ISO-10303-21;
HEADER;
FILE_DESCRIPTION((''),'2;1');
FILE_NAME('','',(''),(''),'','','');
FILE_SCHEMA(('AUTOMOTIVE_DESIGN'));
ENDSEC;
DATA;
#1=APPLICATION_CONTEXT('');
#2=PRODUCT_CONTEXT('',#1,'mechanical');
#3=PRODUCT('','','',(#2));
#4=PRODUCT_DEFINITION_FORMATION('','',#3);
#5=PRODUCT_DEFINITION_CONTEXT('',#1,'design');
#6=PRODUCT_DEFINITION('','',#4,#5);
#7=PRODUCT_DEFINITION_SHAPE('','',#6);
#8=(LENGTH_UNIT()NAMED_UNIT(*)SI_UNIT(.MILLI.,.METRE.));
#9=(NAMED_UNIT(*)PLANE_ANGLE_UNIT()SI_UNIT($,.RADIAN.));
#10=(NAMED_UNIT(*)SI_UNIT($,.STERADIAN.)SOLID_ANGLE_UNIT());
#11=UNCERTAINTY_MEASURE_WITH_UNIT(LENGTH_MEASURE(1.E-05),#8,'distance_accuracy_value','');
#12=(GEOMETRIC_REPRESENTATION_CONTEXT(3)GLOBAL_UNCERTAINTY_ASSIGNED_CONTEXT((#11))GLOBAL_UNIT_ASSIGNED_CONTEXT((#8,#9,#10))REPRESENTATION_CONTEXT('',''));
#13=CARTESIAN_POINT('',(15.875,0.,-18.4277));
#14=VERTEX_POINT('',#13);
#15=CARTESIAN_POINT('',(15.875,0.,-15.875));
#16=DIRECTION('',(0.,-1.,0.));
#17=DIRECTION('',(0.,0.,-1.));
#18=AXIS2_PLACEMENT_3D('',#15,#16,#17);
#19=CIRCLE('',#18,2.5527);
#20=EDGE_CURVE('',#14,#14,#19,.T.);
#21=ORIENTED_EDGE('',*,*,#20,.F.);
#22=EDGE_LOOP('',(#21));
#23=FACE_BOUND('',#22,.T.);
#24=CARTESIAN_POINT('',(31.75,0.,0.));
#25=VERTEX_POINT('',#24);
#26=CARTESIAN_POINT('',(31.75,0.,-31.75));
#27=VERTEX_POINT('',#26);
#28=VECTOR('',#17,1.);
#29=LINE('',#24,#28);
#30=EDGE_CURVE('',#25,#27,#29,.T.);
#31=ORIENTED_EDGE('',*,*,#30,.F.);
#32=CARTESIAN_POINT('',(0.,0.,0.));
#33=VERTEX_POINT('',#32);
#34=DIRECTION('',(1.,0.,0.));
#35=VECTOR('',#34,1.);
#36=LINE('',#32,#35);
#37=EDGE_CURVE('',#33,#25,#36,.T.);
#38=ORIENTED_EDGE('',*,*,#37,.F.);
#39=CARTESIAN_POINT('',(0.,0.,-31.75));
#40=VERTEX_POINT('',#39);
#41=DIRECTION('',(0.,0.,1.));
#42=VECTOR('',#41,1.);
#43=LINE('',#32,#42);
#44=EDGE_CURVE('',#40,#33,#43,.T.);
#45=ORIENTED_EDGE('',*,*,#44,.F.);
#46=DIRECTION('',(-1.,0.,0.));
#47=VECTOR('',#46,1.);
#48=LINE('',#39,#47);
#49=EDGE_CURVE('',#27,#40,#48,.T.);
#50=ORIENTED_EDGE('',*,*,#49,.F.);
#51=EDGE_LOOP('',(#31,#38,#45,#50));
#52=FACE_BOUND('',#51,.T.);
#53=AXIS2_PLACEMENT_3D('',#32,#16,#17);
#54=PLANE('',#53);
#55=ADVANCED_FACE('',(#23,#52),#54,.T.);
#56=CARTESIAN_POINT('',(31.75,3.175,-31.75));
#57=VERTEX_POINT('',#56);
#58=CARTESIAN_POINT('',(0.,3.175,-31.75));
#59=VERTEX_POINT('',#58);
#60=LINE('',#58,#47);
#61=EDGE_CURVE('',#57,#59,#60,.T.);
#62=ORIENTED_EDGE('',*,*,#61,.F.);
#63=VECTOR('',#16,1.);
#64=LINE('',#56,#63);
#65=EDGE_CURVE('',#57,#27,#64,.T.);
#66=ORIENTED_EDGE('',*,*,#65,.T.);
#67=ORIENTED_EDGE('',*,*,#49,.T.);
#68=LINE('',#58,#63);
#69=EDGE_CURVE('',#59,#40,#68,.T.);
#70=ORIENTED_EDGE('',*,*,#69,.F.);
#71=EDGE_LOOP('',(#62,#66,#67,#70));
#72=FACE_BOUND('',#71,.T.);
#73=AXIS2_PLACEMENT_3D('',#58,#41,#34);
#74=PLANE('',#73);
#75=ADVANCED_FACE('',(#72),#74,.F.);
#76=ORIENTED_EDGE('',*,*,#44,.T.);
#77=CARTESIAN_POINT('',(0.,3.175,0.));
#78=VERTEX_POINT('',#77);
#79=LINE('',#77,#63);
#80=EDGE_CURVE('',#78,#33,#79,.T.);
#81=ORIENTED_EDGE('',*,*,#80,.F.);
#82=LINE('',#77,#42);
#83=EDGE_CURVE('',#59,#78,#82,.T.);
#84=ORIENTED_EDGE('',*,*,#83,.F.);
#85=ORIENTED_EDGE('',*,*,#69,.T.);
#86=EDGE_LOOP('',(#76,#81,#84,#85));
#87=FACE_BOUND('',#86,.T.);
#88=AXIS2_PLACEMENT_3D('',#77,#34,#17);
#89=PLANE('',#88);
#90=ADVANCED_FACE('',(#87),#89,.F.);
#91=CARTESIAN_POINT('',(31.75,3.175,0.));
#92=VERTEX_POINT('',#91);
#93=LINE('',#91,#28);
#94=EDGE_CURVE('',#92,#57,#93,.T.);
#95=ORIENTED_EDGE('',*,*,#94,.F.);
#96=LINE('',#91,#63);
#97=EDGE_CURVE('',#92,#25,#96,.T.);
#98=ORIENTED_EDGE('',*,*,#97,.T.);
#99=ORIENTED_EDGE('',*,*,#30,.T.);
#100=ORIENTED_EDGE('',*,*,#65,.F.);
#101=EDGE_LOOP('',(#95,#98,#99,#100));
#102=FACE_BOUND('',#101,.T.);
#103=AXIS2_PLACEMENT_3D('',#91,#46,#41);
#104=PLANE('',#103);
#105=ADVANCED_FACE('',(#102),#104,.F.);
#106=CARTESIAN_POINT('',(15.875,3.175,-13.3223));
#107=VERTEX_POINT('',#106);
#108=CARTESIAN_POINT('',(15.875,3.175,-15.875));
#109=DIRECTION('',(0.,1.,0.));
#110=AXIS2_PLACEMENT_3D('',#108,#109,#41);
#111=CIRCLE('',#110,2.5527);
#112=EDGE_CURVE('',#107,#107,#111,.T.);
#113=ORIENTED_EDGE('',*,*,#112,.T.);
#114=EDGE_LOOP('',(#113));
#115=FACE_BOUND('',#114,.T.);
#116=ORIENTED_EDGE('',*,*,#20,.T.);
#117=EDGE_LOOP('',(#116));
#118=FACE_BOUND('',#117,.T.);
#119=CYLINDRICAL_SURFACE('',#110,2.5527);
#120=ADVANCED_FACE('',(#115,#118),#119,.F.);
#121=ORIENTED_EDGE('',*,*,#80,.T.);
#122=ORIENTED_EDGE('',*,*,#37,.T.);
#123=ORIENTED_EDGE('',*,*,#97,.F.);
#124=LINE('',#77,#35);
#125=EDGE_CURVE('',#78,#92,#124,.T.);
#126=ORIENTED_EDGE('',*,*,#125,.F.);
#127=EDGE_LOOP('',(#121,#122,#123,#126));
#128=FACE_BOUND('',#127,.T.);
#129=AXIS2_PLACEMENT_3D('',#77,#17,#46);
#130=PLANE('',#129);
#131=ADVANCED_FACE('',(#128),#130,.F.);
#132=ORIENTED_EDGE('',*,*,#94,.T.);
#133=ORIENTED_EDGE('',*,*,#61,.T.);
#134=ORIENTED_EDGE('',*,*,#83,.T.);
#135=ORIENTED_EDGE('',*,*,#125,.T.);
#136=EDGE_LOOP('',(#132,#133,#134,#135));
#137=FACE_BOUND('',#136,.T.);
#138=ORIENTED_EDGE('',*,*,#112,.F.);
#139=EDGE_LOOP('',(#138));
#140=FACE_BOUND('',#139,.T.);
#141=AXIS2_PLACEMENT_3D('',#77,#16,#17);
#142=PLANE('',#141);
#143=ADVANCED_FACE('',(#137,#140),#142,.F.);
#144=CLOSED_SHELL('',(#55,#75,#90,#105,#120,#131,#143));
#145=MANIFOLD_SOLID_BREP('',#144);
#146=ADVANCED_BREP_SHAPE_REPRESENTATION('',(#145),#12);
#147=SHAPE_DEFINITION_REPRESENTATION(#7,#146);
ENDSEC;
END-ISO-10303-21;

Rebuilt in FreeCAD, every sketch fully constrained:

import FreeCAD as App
import Part
import Sketcher
from FreeCAD import Vector
Q = App.Units.Quantity


def add_polygon(sketch, points):
    """Adds a closed chain of lines whose ends are joined by coincident constraints."""
    first, n = sketch.GeometryCount, len(points)
    for a, b in zip(points, points[1:] + points[:1]):
        sketch.addGeometry(Part.LineSegment(App.Vector(*a, 0), App.Vector(*b, 0)), False)
    for i in range(n):
        sketch.addConstraint(Sketcher.Constraint("Coincident", first + i, 2, first + (i + 1) % n, 1))

doc = App.newDocument("Part")
body = doc.addObject("PartDesign::Body", "Body")

# Sketch on XZ plane
sketch1 = body.newObject("Sketcher::SketchObject", "Sketch")
sketch1.AttachmentSupport = (doc.getObject("XZ_Plane"), [""])
sketch1.MapMode = "FlatFace"
add_polygon(sketch1, [(0, -32), (0, 0), (32, 0), (32, -32)])  # lines 0-3
sketch1.addConstraint([
    Sketcher.Constraint("Vertical", 0),
    Sketcher.Constraint("Horizontal", 1),
    Sketcher.Constraint("Vertical", 2),
    Sketcher.Constraint("Horizontal", 3),
    Sketcher.Constraint("Coincident", 0, 2, -1, 1),
    Sketcher.Constraint("Equal", 3, 0),
    Sketcher.Constraint("DistanceX", 1, 1, 1, 2, Q("1.25 in")),
])
pad1 = body.newObject("PartDesign::Pad", "Pad")
pad1.Profile = sketch1
pad1.Length = Q("0.125 in")
pad1.Reversed = True

# Sketch on XZ plane
sketch2 = body.newObject("Sketcher::SketchObject", "Sketch001")
sketch2.AttachmentSupport = (doc.getObject("XZ_Plane"), [""])
sketch2.MapMode = "FlatFace"
sketch2.AttachmentOffset = App.Placement(Vector(0, 0, -0.125 * 25.4), App.Rotation())
sketch2.addGeometry(Part.Circle(Vector(15.9, -15.9, 0), Vector(0, 0, 1), 2.6), False)
sketch2.addConstraint([
    Sketcher.Constraint("Diameter", 0, Q("0.201 in")),
    Sketcher.Constraint("DistanceX", -1, 1, 0, 3, Q("0.625 in")),
    Sketcher.Constraint("DistanceY", 0, 3, -1, 1, Q("0.625 in")),
])
doc.recompute()
hole = body.newObject("PartDesign::Hole", "Hole")
hole.Profile = sketch2
hole.ThreadType = "None"
hole.Diameter = Q("0.201 in")
hole.DepthType = "Dimension"
hole.Depth = Q("0.65 in")
hole.DrillPoint = "Angled"
hole.DrillPointAngle = 118
hole.Reversed = True

doc.recompute()
